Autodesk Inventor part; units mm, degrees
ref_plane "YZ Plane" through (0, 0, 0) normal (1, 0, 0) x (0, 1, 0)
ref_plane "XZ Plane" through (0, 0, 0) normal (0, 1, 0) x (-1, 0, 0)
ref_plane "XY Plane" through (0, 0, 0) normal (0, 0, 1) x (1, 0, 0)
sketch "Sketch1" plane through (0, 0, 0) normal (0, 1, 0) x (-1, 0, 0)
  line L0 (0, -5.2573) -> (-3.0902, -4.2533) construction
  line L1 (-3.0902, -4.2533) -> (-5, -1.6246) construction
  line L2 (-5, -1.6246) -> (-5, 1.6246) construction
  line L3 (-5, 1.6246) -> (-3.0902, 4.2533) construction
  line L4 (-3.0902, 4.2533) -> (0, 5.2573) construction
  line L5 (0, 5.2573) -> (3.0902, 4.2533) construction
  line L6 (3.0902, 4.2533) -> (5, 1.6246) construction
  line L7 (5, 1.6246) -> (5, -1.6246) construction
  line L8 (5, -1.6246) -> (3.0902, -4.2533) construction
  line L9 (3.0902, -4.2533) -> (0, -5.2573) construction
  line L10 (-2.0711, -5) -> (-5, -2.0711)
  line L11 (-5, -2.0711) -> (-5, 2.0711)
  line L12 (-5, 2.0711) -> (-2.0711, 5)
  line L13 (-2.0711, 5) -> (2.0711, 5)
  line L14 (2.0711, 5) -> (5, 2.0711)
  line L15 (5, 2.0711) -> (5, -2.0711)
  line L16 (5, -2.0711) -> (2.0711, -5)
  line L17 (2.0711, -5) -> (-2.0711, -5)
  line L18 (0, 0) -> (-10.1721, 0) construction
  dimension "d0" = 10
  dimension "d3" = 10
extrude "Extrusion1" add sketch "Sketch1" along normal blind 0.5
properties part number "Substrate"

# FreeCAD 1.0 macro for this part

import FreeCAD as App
import Part
import Sketcher
from FreeCAD import Vector
Q = App.Units.Quantity

doc = App.newDocument("Part")
body = doc.addObject("PartDesign::Body", "Body")

# Sketch on XZ plane
sketch1 = body.newObject("Sketcher::SketchObject", "Sketch")
sketch1.AttachmentSupport = (doc.getObject("XZ_Plane"), [""])
sketch1.MapMode = "FlatFace"
sketch1.addGeometry([
    Part.LineSegment(Vector(5, -2.1, 0), Vector(2.1, -5, 0)),  # 0
    Part.LineSegment(Vector(2.1, -5, 0), Vector(-2.1, -5, 0)),  # 1
    Part.LineSegment(Vector(-2.1, -5, 0), Vector(-5, -2.1, 0)),  # 2
    Part.LineSegment(Vector(-5, -2.1, 0), Vector(-5, 2.1, 0)),  # 3
    Part.LineSegment(Vector(-5, 2.1, 0), Vector(-2.1, 5, 0)),  # 4
    Part.LineSegment(Vector(-2.1, 5, 0), Vector(2.1, 5, 0)),  # 5
    Part.LineSegment(Vector(2.1, 5, 0), Vector(5, 2.1, 0)),  # 6
    Part.LineSegment(Vector(5, 2.1, 0), Vector(5, -2.1, 0)),  # 7
], False)
sketch1.addConstraint([
    Sketcher.Constraint("Coincident", 0, 2, 1, 1),
    Sketcher.Constraint("Coincident", 1, 2, 2, 1),
    Sketcher.Constraint("Coincident", 2, 2, 3, 1),
    Sketcher.Constraint("Coincident", 3, 2, 4, 1),
    Sketcher.Constraint("Coincident", 4, 2, 5, 1),
    Sketcher.Constraint("Coincident", 5, 2, 6, 1),
    Sketcher.Constraint("Coincident", 6, 2, 7, 1),
    Sketcher.Constraint("Coincident", 7, 2, 0, 1),
    Sketcher.Constraint("Horizontal", 1),
    Sketcher.Constraint("Vertical", 3),
    Sketcher.Constraint("Horizontal", 5),
    Sketcher.Constraint("Vertical", 7),
    Sketcher.Constraint("Symmetric", 0, 2, 4, 2, -1, 1),
    Sketcher.Constraint("Symmetric", 2, 2, 6, 2, -1, 1),
    Sketcher.Constraint("Perpendicular", 0, 2),
    Sketcher.Constraint("Perpendicular", 2, 4),
    Sketcher.Constraint("Perpendicular", 4, 6),
    Sketcher.Constraint("Horizontal", 3, 2, 6, 2),
    Sketcher.Constraint("Vertical", 1, 2, 4, 2),
    Sketcher.Constraint("Equal", 5, 3),
    Sketcher.Constraint("DistanceY", 1, 2, 4, 2, Q("10 mm")),
    Sketcher.Constraint("Distance", 0, Q("4.142 mm")),
])
pad1 = body.newObject("PartDesign::Pad", "Pad")
pad1.Profile = sketch1
pad1.Length = 0.5
pad1.Reversed = True

doc.recompute()
